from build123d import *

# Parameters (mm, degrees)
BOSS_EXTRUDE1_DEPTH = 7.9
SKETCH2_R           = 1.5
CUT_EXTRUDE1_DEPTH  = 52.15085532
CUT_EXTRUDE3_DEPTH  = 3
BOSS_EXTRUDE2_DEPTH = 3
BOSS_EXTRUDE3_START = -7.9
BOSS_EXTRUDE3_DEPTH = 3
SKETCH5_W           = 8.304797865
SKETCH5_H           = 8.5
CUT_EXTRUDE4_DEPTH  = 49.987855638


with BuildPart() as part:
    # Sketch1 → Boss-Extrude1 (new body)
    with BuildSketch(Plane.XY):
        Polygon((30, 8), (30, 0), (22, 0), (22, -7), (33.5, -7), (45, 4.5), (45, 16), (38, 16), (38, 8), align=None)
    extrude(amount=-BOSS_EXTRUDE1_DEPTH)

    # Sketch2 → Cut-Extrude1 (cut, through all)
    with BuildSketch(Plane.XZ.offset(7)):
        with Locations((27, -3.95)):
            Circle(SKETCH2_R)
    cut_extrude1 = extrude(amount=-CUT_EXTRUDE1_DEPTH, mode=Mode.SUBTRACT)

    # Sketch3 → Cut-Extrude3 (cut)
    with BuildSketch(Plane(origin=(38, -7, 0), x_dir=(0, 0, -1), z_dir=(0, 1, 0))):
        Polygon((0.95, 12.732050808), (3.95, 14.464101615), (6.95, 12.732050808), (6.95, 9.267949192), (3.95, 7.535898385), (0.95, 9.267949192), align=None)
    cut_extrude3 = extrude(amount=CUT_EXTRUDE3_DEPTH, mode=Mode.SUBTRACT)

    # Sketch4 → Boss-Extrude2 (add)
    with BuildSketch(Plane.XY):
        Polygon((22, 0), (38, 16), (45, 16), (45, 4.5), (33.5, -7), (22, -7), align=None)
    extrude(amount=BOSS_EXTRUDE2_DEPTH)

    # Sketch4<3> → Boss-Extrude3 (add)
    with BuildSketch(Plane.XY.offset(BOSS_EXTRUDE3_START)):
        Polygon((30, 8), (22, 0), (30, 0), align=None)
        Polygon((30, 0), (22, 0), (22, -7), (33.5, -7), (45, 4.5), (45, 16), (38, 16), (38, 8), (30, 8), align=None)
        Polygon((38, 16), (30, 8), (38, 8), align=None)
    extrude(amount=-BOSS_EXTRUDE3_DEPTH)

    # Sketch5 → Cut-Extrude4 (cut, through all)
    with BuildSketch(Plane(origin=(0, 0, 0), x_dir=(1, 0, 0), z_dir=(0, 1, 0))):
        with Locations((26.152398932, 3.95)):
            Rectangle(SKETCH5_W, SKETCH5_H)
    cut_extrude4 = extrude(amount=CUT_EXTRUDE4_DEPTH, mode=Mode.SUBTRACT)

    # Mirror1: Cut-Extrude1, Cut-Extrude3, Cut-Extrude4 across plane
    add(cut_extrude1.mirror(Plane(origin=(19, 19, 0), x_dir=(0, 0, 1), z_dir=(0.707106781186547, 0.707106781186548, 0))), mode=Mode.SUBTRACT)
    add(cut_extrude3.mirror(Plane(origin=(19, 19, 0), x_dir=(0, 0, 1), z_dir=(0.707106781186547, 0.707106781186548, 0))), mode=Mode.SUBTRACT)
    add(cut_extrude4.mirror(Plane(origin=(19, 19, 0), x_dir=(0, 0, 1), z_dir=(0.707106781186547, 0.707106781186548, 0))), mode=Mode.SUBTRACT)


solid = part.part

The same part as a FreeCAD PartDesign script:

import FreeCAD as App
import Part
import Sketcher
from FreeCAD import Vector
Q = App.Units.Quantity

doc = App.newDocument("Part")
params = doc.addObject("Spreadsheet::Sheet", "Params")
for row, (alias, value) in enumerate([
    ("sketch1_width", "8 mm"),
    ("sketch1_width2", "7 mm"),
    ("sketch1_width3", "11.5 mm"),
    ("pad1_length", "7.9 mm"),
    ("sketch2_diameter", "3 mm"),
    ("pocket2_length", "3 mm"),
    ("sketch4_width", "7 mm"),
    ("sketch4_width2", "11.5 mm"),
    ("pad2_length", "3 mm"),
    ("sketch5_width", "7 mm"),
    ("sketch5_width2", "11.5 mm"),
    ("pad3_length", "3 mm"),
    ("sketch6_height", "8.5 mm"),
], start=1):
    params.set(f"A{row}", alias)
    params.set(f"B{row}", "=" + value)
    params.setAlias(f"B{row}", alias)

body = doc.addObject("PartDesign::Body", "Body")

# Sketch on XY plane
sketch1 = doc.addObject("Sketcher::SketchObject", "Sketch")
body.addObject(sketch1)
sketch1.AttachmentSupport = (doc.XY_Plane, [""])
sketch1.MapMode = "FlatFace"
sketch1.addGeometry([
    Part.LineSegment(Vector(30, 8, 0), Vector(30, 0, 0)),  # 0
    Part.LineSegment(Vector(30, 0, 0), Vector(22, 0, 0)),  # 1
    Part.LineSegment(Vector(22, 0, 0), Vector(22, -7, 0)),  # 2
    Part.LineSegment(Vector(22, -7, 0), Vector(33.5, -7, 0)),  # 3
    Part.LineSegment(Vector(33.5, -7, 0), Vector(45, 4.5, 0)),  # 4
    Part.LineSegment(Vector(45, 4.5, 0), Vector(45, 16, 0)),  # 5
    Part.LineSegment(Vector(45, 16, 0), Vector(38, 16, 0)),  # 6
    Part.LineSegment(Vector(38, 16, 0), Vector(38, 8, 0)),  # 7
    Part.LineSegment(Vector(38, 8, 0), Vector(30, 8, 0)),  # 8
], False)
sketch1.addConstraint([
    Sketcher.Constraint("Coincident", 0, 2, 1, 1),
    Sketcher.Constraint("Coincident", 1, 2, 2, 1),
    Sketcher.Constraint("Coincident", 2, 2, 3, 1),
    Sketcher.Constraint("Coincident", 3, 2, 4, 1),
    Sketcher.Constraint("Coincident", 4, 2, 5, 1),
    Sketcher.Constraint("Coincident", 5, 2, 6, 1),
    Sketcher.Constraint("Coincident", 6, 2, 7, 1),
    Sketcher.Constraint("Coincident", 7, 2, 8, 1),
    Sketcher.Constraint("Coincident", 8, 2, 0, 1),
    Sketcher.Constraint("Vertical", 0),
    Sketcher.Constraint("Horizontal", 1),
    Sketcher.Constraint("Vertical", 2),
    Sketcher.Constraint("Horizontal", 3),
    Sketcher.Constraint("Vertical", 5),
    Sketcher.Constraint("Horizontal", 6),
    Sketcher.Constraint("Vertical", 7),
    Sketcher.Constraint("Horizontal", 8),
    Sketcher.Constraint("PointOnObject", 0, 2, -1),
    Sketcher.Constraint("Equal", 1, 8),
    Sketcher.Constraint("Equal", 8, 0),
    Sketcher.Constraint("Equal", 6, 2),
    Sketcher.Constraint("Equal", 3, 5),
    Sketcher.Constraint("Equal", 0, 7),
    Sketcher.Constraint("DistanceX", 1, 2, 1, 1, Q("8 mm")),
    Sketcher.Constraint("DistanceX", 6, 2, 6, 1, Q("7 mm")),
    Sketcher.Constraint("DistanceX", 3, 1, 3, 2, Q("11.5 mm")),
    Sketcher.Constraint("DistanceX", -1, 1, 0, 2, Q("30 mm")),
])
sketch1.setExpression("Constraints[23]", "Params.sketch1_width")
sketch1.setExpression("Constraints[24]", "Params.sketch1_width2")
sketch1.setExpression("Constraints[25]", "Params.sketch1_width3")
pad1 = doc.addObject("PartDesign::Pad", "Pad")
body.addObject(pad1)
pad1.Profile = sketch1
pad1.setExpression("Length", "Params.pad1_length")
pad1.Reversed = True

# Sketch on XZ plane
sketch2 = doc.addObject("Sketcher::SketchObject", "Sketch001")
body.addObject(sketch2)
sketch2.AttachmentSupport = (doc.XZ_Plane, [""])
sketch2.MapMode = "FlatFace"
sketch2.AttachmentOffset = App.Placement(Vector(0, 0, 7), App.Rotation())
sketch2.addGeometry(Part.Circle(Vector(27, -3.95, 0), Vector(0, 0, 1), 1.5), False)
sketch2.addConstraint([
    Sketcher.Constraint("Diameter", 0, Q("3 mm")),
    Sketcher.Constraint("DistanceX", -1, 1, 0, 3, Q("27 mm")),
    Sketcher.Constraint("DistanceY", 0, 3, -1, 1, Q("3.95 mm")),
])
sketch2.setExpression("Constraints[0]", "Params.sketch2_diameter")
pocket1 = doc.addObject("PartDesign::Pocket", "Pocket")
body.addObject(pocket1)
pocket1.Profile = sketch2
pocket1.Type = "ThroughAll"

# Sketch on XZ plane
sketch3 = doc.addObject("Sketcher::SketchObject", "Sketch002")
body.addObject(sketch3)
sketch3.AttachmentSupport = (doc.XZ_Plane, [""])
sketch3.MapMode = "FlatFace"
sketch3.AttachmentOffset = App.Placement(Vector(0, 0, 7), App.Rotation())
sketch3.addGeometry([
    Part.LineSegment(Vector(23.535898, -3.95, 0), Vector(25.267949, -0.95, 0)),  # 0
    Part.LineSegment(Vector(25.267949, -0.95, 0), Vector(28.732051, -0.95, 0)),  # 1
    Part.LineSegment(Vector(28.732051, -0.95, 0), Vector(30.464102, -3.95, 0)),  # 2
    Part.LineSegment(Vector(30.464102, -3.95, 0), Vector(28.732051, -6.95, 0)),  # 3
    Part.LineSegment(Vector(28.732051, -6.95, 0), Vector(25.267949, -6.95, 0)),  # 4
    Part.LineSegment(Vector(25.267949, -6.95, 0), Vector(23.535898, -3.95, 0)),  # 5
], False)
sketch3.addConstraint([
    Sketcher.Constraint("Coincident", 0, 2, 1, 1),
    Sketcher.Constraint("Coincident", 1, 2, 2, 1),
    Sketcher.Constraint("Coincident", 2, 2, 3, 1),
    Sketcher.Constraint("Coincident", 3, 2, 4, 1),
    Sketcher.Constraint("Coincident", 4, 2, 5, 1),
    Sketcher.Constraint("Coincident", 5, 2, 0, 1),
    Sketcher.Constraint("Horizontal", 1),
    Sketcher.Constraint("Horizontal", 4),
    Sketcher.Constraint("Parallel", 0, 3),
    Sketcher.Constraint("Parallel", 2, 5),
    Sketcher.Constraint("Horizontal", 2, 2, 5, 2),
    Sketcher.Constraint("Vertical", 1, 2, 3, 2),
    Sketcher.Constraint("Vertical", 0, 2, 4, 2),
    Sketcher.Constraint("Angle", 0, Q("60 deg")),
    Sketcher.Constraint("DistanceY", 2, 2, 1, 2, Q("3 mm")),
    Sketcher.Constraint("DistanceY", 0, 2, -1, 1, Q("0.95 mm")),
    Sketcher.Constraint("DistanceX", 1, 1, 1, 2, Q("3.464102 mm")),
    Sketcher.Constraint("DistanceX", -1, 1, 2, 2, Q("30.464102 mm")),
])
pocket2 = doc.addObject("PartDesign::Pocket", "Pocket001")
body.addObject(pocket2)
pocket2.Profile = sketch3
pocket2.setExpression("Length", "Params.pocket2_length")

# Sketch on XY plane
sketch4 = doc.addObject("Sketcher::SketchObject", "Sketch003")
body.addObject(sketch4)
sketch4.AttachmentSupport = (doc.XY_Plane, [""])
sketch4.MapMode = "FlatFace"
sketch4.addGeometry([
    Part.LineSegment(Vector(38, 16, 0), Vector(22, 0, 0)),  # 0
    Part.LineSegment(Vector(22, 0, 0), Vector(22, -7, 0)),  # 1
    Part.LineSegment(Vector(22, -7, 0), Vector(33.5, -7, 0)),  # 2
    Part.LineSegment(Vector(33.5, -7, 0), Vector(45, 4.5, 0)),  # 3
    Part.LineSegment(Vector(45, 4.5, 0), Vector(45, 16, 0)),  # 4
    Part.LineSegment(Vector(45, 16, 0), Vector(38, 16, 0)),  # 5
], False)
sketch4.addConstraint([
    Sketcher.Constraint("Coincident", 0, 2, 1, 1),
    Sketcher.Constraint("Coincident", 1, 2, 2, 1),
    Sketcher.Constraint("Coincident", 2, 2, 3, 1),
    Sketcher.Constraint("Coincident", 3, 2, 4, 1),
    Sketcher.Constraint("Coincident", 4, 2, 5, 1),
    Sketcher.Constraint("Coincident", 5, 2, 0, 1),
    Sketcher.Constraint("Vertical", 1),
    Sketcher.Constraint("Horizontal", 2),
    Sketcher.Constraint("Vertical", 4),
    Sketcher.Constraint("Horizontal", 5),
    Sketcher.Constraint("PointOnObject", 0, 2, -1),
    Sketcher.Constraint("Parallel", 0, 3),
    Sketcher.Constraint("Equal", 5, 1),
    Sketcher.Constraint("Equal", 2, 4),
    Sketcher.Constraint("DistanceX", 5, 2, 5, 1, Q("7 mm")),
    Sketcher.Constraint("DistanceX", 2, 1, 2, 2, Q("11.5 mm")),
    Sketcher.Constraint("DistanceX", -1, 1, 0, 2, Q("22 mm")),
    Sketcher.Constraint("DistanceX", -1, 1, 3, 2, Q("45 mm")),
])
sketch4.setExpression("Constraints[14]", "Params.sketch4_width")
sketch4.setExpression("Constraints[15]", "Params.sketch4_width2")
pad2 = doc.addObject("PartDesign::Pad", "Pad001")
body.addObject(pad2)
pad2.Profile = sketch4
pad2.setExpression("Length", "Params.pad2_length")

# Sketch on XY plane
sketch5 = doc.addObject("Sketcher::SketchObject", "Sketch004")
body.addObject(sketch5)
sketch5.AttachmentSupport = (doc.XY_Plane, [""])
sketch5.MapMode = "FlatFace"
sketch5.AttachmentOffset = App.Placement(Vector(0, 0, -7.9), App.Rotation())
sketch5.addGeometry([
    Part.LineSegment(Vector(22, 0, 0), Vector(22, -7, 0)),  # 0
    Part.LineSegment(Vector(22, -7, 0), Vector(33.5, -7, 0)),  # 1
    Part.LineSegment(Vector(33.5, -7, 0), Vector(45, 4.5, 0)),  # 2
    Part.LineSegment(Vector(45, 4.5, 0), Vector(45, 16, 0)),  # 3
    Part.LineSegment(Vector(45, 16, 0), Vector(38, 16, 0)),  # 4
    Part.LineSegment(Vector(38, 16, 0), Vector(22, 0, 0)),  # 5
], False)
sketch5.addConstraint([
    Sketcher.Constraint("Coincident", 0, 2, 1, 1),
    Sketcher.Constraint("Coincident", 1, 2, 2, 1),
    Sketcher.Constraint("Coincident", 2, 2, 3, 1),
    Sketcher.Constraint("Coincident", 3, 2, 4, 1),
    Sketcher.Constraint("Coincident", 4, 2, 5, 1),
    Sketcher.Constraint("Coincident", 5, 2, 0, 1),
    Sketcher.Constraint("Vertical", 0),
    Sketcher.Constraint("Horizontal", 1),
    Sketcher.Constraint("Vertical", 3),
    Sketcher.Constraint("Horizontal", 4),
    Sketcher.Constraint("PointOnObject", 5, 2, -1),
    Sketcher.Constraint("Parallel", 2, 5),
    Sketcher.Constraint("Equal", 4, 0),
    Sketcher.Constraint("Equal", 1, 3),
    Sketcher.Constraint("DistanceX", 4, 2, 4, 1, Q("7 mm")),
    Sketcher.Constraint("DistanceX", 1, 1, 1, 2, Q("11.5 mm")),
    Sketcher.Constraint("DistanceX", -1, 1, 0, 2, Q("22 mm")),
    Sketcher.Constraint("DistanceX", -1, 1, 2, 2, Q("45 mm")),
])
sketch5.setExpression("Constraints[14]", "Params.sketch5_width")
sketch5.setExpression("Constraints[15]", "Params.sketch5_width2")
pad3 = doc.addObject("PartDesign::Pad", "Pad002")
body.addObject(pad3)
pad3.Profile = sketch5
pad3.setExpression("Length", "Params.pad3_length")
pad3.Reversed = True

# Sketch on XZ plane
sketch6 = doc.addObject("Sketcher::SketchObject", "Sketch005")
body.addObject(sketch6)
sketch6.AttachmentSupport = (doc.XZ_Plane, [""])
sketch6.MapMode = "FlatFace"
sketch6.addGeometry([
    Part.LineSegment(Vector(22, -8.2, 0), Vector(22, 0.3, 0)),
    Part.LineSegment(Vector(22, 0.3, 0), Vector(30.304798, 0.3, 0)),
    Part.LineSegment(Vector(30.304798, 0.3, 0), Vector(30.304798, -8.2, 0)),
    Part.LineSegment(Vector(30.304798, -8.2, 0), Vector(22, -8.2, 0)),
], False)
sketch6.addConstraint([
    Sketcher.Constraint("Coincident", 0, 2, 1, 1),
    Sketcher.Constraint("Coincident", 1, 2, 2, 1),
    Sketcher.Constraint("Coincident", 2, 2, 3, 1),
    Sketcher.Constraint("Coincident", 3, 2, 0, 1),
    Sketcher.Constraint("Vertical", 0),
    Sketcher.Constraint("Horizontal", 1),
    Sketcher.Constraint("Vertical", 2),
    Sketcher.Constraint("Horizontal", 3),
    Sketcher.Constraint("DistanceY", 0, 1, 0, 2, Q("8.5 mm")),
    Sketcher.Constraint("DistanceX", -1, 1, 0, 2, Q("22 mm")),
    Sketcher.Constraint("DistanceY", -1, 1, 0, 2, Q("0.3 mm")),
    Sketcher.Constraint("DistanceX", 1, 1, 1, 2, Q("8.304798 mm")),
])
sketch6.setExpression("Constraints[8]", "Params.sketch6_height")
pocket3 = doc.addObject("PartDesign::Pocket", "Pocket002")
body.addObject(pocket3)
pocket3.Profile = sketch6
pocket3.Type = "ThroughAll"
doc.recompute()

datumplane = doc.addObject("PartDesign::Plane", "DatumPlane")
body.addObject(datumplane)
datumplane.Placement = App.Placement(Vector(19, 19, 0), App.Rotation(Vector(0.707106781, -0.707106781, 0), Vector(0, 0, -1), Vector(0.707106781, 0.707106781, 0), "ZXY"))
mirrored = doc.addObject("PartDesign::Mirrored", "Mirrored")
body.addObject(mirrored)
mirrored.Originals = [pocket1, pocket2, pocket3]
mirrored.MirrorPlane = (datumplane, [""])
body.Tip = mirrored

doc.recompute()
